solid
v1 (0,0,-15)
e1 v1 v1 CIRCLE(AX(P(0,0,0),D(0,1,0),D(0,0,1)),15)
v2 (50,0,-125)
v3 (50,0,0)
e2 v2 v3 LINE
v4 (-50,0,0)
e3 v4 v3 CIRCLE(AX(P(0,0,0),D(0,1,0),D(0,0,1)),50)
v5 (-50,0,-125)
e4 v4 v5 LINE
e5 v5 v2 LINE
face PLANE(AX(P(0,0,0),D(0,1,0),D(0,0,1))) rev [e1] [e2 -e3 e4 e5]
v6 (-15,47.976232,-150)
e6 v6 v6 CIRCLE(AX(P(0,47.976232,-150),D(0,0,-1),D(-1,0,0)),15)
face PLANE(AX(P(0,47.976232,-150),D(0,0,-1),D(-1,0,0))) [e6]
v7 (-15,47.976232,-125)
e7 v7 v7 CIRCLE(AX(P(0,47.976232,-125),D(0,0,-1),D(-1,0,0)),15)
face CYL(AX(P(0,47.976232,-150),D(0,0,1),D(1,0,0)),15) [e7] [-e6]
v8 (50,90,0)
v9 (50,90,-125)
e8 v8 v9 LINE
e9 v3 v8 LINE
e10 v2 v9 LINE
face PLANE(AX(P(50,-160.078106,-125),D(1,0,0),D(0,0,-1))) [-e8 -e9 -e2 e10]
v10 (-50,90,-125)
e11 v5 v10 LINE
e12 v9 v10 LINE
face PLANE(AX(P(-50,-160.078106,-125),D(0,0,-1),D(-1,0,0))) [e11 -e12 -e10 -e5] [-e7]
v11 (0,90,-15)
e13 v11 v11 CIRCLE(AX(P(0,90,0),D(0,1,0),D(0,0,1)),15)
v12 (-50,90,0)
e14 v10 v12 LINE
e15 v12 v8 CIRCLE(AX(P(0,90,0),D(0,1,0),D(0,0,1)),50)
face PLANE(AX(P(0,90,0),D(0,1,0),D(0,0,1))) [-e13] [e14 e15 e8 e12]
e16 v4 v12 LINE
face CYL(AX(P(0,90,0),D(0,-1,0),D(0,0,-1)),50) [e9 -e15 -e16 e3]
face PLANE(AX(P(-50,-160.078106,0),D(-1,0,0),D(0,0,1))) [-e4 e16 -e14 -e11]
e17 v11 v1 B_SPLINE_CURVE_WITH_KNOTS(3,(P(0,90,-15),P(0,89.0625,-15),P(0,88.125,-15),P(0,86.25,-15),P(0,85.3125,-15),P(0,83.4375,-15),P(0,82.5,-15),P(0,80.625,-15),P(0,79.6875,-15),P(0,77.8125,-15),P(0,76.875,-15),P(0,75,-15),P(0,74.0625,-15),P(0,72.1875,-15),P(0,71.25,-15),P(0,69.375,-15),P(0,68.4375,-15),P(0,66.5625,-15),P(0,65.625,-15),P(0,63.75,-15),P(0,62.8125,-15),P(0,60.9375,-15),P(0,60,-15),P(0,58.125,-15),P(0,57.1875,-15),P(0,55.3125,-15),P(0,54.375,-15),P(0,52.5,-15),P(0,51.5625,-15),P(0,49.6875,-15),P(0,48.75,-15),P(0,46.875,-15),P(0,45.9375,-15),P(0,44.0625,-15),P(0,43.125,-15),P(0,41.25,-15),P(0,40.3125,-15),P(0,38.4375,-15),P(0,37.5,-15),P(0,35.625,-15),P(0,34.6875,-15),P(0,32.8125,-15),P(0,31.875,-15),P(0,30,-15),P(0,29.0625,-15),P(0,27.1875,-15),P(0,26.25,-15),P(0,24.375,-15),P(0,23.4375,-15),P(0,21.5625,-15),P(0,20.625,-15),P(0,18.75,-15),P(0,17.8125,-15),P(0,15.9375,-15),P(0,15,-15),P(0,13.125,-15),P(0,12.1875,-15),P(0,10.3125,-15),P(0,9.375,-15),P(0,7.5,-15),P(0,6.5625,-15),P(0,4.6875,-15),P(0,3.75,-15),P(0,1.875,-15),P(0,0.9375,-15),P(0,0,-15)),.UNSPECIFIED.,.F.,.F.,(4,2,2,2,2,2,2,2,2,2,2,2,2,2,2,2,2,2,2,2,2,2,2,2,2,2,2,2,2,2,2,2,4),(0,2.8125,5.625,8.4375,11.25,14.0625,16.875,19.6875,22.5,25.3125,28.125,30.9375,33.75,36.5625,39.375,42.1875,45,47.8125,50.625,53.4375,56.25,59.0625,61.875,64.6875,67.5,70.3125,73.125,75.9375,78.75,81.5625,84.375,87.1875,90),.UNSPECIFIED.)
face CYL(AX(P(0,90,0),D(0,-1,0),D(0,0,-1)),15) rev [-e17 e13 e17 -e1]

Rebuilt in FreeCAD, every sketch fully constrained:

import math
import FreeCAD as App
import Part
import Sketcher

doc = App.newDocument("Part")
body = doc.addObject("PartDesign::Body", "Body")

# Sketch on XZ plane
sketch1 = body.newObject("Sketcher::SketchObject", "Sketch")
sketch1.AttachmentSupport = (doc.getObject("XZ_Plane"), [""])
sketch1.MapMode = "FlatFace"
sketch1.addGeometry([
    Part.Circle(App.Vector(0, 0, 0), App.Vector(0, 0, 1), 50),
    Part.Circle(App.Vector(0, 0, 0), App.Vector(0, 0, 1), 15),
], False)
sketch1.addConstraint([
    Sketcher.Constraint("Coincident", 0, 3, -1, 1),
    Sketcher.Constraint("Coincident", 1, 3, -1, 1),
    Sketcher.Constraint("Diameter", 0, 100.0),
    Sketcher.Constraint("Diameter", 1, 30.0),
])
pad1 = body.newObject("PartDesign::Pad", "Pad")
pad1.Profile = sketch1
pad1.Length = 90
pad1.Reversed = True

# Sketch on XZ plane
sketch2 = body.newObject("Sketcher::SketchObject", "Sketch001")
sketch2.AttachmentSupport = (doc.getObject("XZ_Plane"), [""])
sketch2.MapMode = "FlatFace"
sketch2.addGeometry([
    Part.LineSegment(App.Vector(-50, -125, 0), App.Vector(-50, 0, 0)),
    Part.ArcOfCircle(Part.Circle(App.Vector(0, 0, 0), App.Vector(0, 0, 1), 50), math.radians(180), math.radians(360)),
    Part.LineSegment(App.Vector(50, 0, 0), App.Vector(50, -125, 0)),
    Part.LineSegment(App.Vector(50, -125, 0), App.Vector(-50, -125, 0)),
], False)
sketch2.addConstraint([
    Sketcher.Constraint("Tangent", 0, 2, 1, 1),
    Sketcher.Constraint("Tangent", 1, 2, 2, 1),
    Sketcher.Constraint("Coincident", 2, 2, 3, 1),
    Sketcher.Constraint("Coincident", 3, 2, 0, 1),
    Sketcher.Constraint("Vertical", 0),
    Sketcher.Constraint("Vertical", 2),
    Sketcher.Constraint("Horizontal", 3),
    Sketcher.Constraint("Coincident", 1, 3, -1, 1),
    Sketcher.Constraint("Radius", 1, 50.0),
    Sketcher.Constraint("DistanceY", 0, 1, 0, 2, 125.0),
])
pad2 = body.newObject("PartDesign::Pad", "Pad001")
pad2.Profile = sketch2
pad2.Length = 90
pad2.Reversed = True

# Sketch on XY plane
sketch3 = body.newObject("Sketcher::SketchObject", "Sketch002")
sketch3.AttachmentSupport = (doc.getObject("XY_Plane"), [""])
sketch3.MapMode = "FlatFace"
sketch3.AttachmentOffset = App.Placement(App.Vector(0, 0, -125), App.Rotation())
sketch3.addGeometry(Part.Circle(App.Vector(0, 47.976232, 0), App.Vector(0, 0, 1), 15), False)
sketch3.addConstraint([
    Sketcher.Constraint("PointOnObject", 0, 3, -2),
    Sketcher.Constraint("Diameter", 0, 30.0),
    Sketcher.Constraint("DistanceY", -1, 1, 0, 3, 47.976232),
])
pad3 = body.newObject("PartDesign::Pad", "Pad002")
pad3.Profile = sketch3
pad3.Length = 25
pad3.Reversed = True

doc.recompute()
